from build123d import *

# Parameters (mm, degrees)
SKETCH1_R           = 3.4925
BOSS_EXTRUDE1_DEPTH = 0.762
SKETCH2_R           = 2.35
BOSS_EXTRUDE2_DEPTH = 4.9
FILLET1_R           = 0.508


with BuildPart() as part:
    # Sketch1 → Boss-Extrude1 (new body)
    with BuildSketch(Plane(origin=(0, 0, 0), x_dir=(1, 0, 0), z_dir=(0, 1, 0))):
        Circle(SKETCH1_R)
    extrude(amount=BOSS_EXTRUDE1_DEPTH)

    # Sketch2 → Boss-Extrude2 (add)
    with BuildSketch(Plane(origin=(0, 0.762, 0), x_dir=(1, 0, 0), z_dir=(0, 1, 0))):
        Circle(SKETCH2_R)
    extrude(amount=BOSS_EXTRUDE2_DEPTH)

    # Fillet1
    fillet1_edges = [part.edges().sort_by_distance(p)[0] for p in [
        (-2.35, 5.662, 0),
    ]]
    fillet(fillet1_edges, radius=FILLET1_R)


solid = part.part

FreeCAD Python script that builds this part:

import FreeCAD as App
import Part
import Sketcher
from FreeCAD import Vector
Q = App.Units.Quantity


def edges_at(feature, points):
    """Names of the edges that pass closest to the given points."""
    edges = feature.Shape.Edges
    near = lambda p: min(range(len(edges)), key=lambda i: edges[i].distToShape(Part.Vertex(*p))[0])
    return sorted({f"Edge{near(p) + 1}" for p in points})

doc = App.newDocument("Part")
params = doc.addObject("Spreadsheet::Sheet", "Params")
for row, (alias, value) in enumerate([
    ("sketch1_diameter", "0.275 in"),
    ("pad1_length", "0.03 in"),
    ("pad2_length", "4.9 mm"),
    ("fillet_radius", "0.02 in"),
], start=1):
    params.set(f"A{row}", alias)
    params.set(f"B{row}", "=" + value)
    params.setAlias(f"B{row}", alias)

body = doc.addObject("PartDesign::Body", "Body")

# Sketch on XZ plane
sketch1 = body.newObject("Sketcher::SketchObject", "Sketch")
sketch1.AttachmentSupport = (doc.getObject("XZ_Plane"), [""])
sketch1.MapMode = "FlatFace"
sketch1.addGeometry(Part.Circle(Vector(0, 0, 0), Vector(0, 0, 1), 3.5), False)
sketch1.addConstraint([
    Sketcher.Constraint("Coincident", 0, 3, -1, 1),
    Sketcher.Constraint("Diameter", 0, Q("0.275 in")),
])
sketch1.setExpression("Constraints[1]", "Params.sketch1_diameter")
pad1 = body.newObject("PartDesign::Pad", "Pad")
pad1.Profile = sketch1
pad1.setExpression("Length", "Params.pad1_length")
pad1.Reversed = True

# Sketch on XZ plane
sketch2 = body.newObject("Sketcher::SketchObject", "Sketch001")
sketch2.AttachmentSupport = (doc.getObject("XZ_Plane"), [""])
sketch2.MapMode = "FlatFace"
sketch2.AttachmentOffset = App.Placement(Vector(0, 0, -0.03 * 25.4), App.Rotation())
sketch2.addGeometry(Part.Circle(Vector(0, 0, 0), Vector(0, 0, 1), 2.4), False)
sketch2.addConstraint([
    Sketcher.Constraint("Coincident", 0, 3, -1, 1),
    Sketcher.Constraint("Diameter", 0, Q("4.7 mm")),
])
pad2 = body.newObject("PartDesign::Pad", "Pad001")
pad2.Profile = sketch2
pad2.setExpression("Length", "Params.pad2_length")
pad2.Reversed = True
doc.recompute()

fillet = body.newObject("PartDesign::Fillet", "Fillet")
fillet.Base = (pad2, edges_at(pad2, [(-2.35, 5.662, 0)]))
fillet.setExpression("Radius", "Params.fillet_radius")

doc.recompute()
